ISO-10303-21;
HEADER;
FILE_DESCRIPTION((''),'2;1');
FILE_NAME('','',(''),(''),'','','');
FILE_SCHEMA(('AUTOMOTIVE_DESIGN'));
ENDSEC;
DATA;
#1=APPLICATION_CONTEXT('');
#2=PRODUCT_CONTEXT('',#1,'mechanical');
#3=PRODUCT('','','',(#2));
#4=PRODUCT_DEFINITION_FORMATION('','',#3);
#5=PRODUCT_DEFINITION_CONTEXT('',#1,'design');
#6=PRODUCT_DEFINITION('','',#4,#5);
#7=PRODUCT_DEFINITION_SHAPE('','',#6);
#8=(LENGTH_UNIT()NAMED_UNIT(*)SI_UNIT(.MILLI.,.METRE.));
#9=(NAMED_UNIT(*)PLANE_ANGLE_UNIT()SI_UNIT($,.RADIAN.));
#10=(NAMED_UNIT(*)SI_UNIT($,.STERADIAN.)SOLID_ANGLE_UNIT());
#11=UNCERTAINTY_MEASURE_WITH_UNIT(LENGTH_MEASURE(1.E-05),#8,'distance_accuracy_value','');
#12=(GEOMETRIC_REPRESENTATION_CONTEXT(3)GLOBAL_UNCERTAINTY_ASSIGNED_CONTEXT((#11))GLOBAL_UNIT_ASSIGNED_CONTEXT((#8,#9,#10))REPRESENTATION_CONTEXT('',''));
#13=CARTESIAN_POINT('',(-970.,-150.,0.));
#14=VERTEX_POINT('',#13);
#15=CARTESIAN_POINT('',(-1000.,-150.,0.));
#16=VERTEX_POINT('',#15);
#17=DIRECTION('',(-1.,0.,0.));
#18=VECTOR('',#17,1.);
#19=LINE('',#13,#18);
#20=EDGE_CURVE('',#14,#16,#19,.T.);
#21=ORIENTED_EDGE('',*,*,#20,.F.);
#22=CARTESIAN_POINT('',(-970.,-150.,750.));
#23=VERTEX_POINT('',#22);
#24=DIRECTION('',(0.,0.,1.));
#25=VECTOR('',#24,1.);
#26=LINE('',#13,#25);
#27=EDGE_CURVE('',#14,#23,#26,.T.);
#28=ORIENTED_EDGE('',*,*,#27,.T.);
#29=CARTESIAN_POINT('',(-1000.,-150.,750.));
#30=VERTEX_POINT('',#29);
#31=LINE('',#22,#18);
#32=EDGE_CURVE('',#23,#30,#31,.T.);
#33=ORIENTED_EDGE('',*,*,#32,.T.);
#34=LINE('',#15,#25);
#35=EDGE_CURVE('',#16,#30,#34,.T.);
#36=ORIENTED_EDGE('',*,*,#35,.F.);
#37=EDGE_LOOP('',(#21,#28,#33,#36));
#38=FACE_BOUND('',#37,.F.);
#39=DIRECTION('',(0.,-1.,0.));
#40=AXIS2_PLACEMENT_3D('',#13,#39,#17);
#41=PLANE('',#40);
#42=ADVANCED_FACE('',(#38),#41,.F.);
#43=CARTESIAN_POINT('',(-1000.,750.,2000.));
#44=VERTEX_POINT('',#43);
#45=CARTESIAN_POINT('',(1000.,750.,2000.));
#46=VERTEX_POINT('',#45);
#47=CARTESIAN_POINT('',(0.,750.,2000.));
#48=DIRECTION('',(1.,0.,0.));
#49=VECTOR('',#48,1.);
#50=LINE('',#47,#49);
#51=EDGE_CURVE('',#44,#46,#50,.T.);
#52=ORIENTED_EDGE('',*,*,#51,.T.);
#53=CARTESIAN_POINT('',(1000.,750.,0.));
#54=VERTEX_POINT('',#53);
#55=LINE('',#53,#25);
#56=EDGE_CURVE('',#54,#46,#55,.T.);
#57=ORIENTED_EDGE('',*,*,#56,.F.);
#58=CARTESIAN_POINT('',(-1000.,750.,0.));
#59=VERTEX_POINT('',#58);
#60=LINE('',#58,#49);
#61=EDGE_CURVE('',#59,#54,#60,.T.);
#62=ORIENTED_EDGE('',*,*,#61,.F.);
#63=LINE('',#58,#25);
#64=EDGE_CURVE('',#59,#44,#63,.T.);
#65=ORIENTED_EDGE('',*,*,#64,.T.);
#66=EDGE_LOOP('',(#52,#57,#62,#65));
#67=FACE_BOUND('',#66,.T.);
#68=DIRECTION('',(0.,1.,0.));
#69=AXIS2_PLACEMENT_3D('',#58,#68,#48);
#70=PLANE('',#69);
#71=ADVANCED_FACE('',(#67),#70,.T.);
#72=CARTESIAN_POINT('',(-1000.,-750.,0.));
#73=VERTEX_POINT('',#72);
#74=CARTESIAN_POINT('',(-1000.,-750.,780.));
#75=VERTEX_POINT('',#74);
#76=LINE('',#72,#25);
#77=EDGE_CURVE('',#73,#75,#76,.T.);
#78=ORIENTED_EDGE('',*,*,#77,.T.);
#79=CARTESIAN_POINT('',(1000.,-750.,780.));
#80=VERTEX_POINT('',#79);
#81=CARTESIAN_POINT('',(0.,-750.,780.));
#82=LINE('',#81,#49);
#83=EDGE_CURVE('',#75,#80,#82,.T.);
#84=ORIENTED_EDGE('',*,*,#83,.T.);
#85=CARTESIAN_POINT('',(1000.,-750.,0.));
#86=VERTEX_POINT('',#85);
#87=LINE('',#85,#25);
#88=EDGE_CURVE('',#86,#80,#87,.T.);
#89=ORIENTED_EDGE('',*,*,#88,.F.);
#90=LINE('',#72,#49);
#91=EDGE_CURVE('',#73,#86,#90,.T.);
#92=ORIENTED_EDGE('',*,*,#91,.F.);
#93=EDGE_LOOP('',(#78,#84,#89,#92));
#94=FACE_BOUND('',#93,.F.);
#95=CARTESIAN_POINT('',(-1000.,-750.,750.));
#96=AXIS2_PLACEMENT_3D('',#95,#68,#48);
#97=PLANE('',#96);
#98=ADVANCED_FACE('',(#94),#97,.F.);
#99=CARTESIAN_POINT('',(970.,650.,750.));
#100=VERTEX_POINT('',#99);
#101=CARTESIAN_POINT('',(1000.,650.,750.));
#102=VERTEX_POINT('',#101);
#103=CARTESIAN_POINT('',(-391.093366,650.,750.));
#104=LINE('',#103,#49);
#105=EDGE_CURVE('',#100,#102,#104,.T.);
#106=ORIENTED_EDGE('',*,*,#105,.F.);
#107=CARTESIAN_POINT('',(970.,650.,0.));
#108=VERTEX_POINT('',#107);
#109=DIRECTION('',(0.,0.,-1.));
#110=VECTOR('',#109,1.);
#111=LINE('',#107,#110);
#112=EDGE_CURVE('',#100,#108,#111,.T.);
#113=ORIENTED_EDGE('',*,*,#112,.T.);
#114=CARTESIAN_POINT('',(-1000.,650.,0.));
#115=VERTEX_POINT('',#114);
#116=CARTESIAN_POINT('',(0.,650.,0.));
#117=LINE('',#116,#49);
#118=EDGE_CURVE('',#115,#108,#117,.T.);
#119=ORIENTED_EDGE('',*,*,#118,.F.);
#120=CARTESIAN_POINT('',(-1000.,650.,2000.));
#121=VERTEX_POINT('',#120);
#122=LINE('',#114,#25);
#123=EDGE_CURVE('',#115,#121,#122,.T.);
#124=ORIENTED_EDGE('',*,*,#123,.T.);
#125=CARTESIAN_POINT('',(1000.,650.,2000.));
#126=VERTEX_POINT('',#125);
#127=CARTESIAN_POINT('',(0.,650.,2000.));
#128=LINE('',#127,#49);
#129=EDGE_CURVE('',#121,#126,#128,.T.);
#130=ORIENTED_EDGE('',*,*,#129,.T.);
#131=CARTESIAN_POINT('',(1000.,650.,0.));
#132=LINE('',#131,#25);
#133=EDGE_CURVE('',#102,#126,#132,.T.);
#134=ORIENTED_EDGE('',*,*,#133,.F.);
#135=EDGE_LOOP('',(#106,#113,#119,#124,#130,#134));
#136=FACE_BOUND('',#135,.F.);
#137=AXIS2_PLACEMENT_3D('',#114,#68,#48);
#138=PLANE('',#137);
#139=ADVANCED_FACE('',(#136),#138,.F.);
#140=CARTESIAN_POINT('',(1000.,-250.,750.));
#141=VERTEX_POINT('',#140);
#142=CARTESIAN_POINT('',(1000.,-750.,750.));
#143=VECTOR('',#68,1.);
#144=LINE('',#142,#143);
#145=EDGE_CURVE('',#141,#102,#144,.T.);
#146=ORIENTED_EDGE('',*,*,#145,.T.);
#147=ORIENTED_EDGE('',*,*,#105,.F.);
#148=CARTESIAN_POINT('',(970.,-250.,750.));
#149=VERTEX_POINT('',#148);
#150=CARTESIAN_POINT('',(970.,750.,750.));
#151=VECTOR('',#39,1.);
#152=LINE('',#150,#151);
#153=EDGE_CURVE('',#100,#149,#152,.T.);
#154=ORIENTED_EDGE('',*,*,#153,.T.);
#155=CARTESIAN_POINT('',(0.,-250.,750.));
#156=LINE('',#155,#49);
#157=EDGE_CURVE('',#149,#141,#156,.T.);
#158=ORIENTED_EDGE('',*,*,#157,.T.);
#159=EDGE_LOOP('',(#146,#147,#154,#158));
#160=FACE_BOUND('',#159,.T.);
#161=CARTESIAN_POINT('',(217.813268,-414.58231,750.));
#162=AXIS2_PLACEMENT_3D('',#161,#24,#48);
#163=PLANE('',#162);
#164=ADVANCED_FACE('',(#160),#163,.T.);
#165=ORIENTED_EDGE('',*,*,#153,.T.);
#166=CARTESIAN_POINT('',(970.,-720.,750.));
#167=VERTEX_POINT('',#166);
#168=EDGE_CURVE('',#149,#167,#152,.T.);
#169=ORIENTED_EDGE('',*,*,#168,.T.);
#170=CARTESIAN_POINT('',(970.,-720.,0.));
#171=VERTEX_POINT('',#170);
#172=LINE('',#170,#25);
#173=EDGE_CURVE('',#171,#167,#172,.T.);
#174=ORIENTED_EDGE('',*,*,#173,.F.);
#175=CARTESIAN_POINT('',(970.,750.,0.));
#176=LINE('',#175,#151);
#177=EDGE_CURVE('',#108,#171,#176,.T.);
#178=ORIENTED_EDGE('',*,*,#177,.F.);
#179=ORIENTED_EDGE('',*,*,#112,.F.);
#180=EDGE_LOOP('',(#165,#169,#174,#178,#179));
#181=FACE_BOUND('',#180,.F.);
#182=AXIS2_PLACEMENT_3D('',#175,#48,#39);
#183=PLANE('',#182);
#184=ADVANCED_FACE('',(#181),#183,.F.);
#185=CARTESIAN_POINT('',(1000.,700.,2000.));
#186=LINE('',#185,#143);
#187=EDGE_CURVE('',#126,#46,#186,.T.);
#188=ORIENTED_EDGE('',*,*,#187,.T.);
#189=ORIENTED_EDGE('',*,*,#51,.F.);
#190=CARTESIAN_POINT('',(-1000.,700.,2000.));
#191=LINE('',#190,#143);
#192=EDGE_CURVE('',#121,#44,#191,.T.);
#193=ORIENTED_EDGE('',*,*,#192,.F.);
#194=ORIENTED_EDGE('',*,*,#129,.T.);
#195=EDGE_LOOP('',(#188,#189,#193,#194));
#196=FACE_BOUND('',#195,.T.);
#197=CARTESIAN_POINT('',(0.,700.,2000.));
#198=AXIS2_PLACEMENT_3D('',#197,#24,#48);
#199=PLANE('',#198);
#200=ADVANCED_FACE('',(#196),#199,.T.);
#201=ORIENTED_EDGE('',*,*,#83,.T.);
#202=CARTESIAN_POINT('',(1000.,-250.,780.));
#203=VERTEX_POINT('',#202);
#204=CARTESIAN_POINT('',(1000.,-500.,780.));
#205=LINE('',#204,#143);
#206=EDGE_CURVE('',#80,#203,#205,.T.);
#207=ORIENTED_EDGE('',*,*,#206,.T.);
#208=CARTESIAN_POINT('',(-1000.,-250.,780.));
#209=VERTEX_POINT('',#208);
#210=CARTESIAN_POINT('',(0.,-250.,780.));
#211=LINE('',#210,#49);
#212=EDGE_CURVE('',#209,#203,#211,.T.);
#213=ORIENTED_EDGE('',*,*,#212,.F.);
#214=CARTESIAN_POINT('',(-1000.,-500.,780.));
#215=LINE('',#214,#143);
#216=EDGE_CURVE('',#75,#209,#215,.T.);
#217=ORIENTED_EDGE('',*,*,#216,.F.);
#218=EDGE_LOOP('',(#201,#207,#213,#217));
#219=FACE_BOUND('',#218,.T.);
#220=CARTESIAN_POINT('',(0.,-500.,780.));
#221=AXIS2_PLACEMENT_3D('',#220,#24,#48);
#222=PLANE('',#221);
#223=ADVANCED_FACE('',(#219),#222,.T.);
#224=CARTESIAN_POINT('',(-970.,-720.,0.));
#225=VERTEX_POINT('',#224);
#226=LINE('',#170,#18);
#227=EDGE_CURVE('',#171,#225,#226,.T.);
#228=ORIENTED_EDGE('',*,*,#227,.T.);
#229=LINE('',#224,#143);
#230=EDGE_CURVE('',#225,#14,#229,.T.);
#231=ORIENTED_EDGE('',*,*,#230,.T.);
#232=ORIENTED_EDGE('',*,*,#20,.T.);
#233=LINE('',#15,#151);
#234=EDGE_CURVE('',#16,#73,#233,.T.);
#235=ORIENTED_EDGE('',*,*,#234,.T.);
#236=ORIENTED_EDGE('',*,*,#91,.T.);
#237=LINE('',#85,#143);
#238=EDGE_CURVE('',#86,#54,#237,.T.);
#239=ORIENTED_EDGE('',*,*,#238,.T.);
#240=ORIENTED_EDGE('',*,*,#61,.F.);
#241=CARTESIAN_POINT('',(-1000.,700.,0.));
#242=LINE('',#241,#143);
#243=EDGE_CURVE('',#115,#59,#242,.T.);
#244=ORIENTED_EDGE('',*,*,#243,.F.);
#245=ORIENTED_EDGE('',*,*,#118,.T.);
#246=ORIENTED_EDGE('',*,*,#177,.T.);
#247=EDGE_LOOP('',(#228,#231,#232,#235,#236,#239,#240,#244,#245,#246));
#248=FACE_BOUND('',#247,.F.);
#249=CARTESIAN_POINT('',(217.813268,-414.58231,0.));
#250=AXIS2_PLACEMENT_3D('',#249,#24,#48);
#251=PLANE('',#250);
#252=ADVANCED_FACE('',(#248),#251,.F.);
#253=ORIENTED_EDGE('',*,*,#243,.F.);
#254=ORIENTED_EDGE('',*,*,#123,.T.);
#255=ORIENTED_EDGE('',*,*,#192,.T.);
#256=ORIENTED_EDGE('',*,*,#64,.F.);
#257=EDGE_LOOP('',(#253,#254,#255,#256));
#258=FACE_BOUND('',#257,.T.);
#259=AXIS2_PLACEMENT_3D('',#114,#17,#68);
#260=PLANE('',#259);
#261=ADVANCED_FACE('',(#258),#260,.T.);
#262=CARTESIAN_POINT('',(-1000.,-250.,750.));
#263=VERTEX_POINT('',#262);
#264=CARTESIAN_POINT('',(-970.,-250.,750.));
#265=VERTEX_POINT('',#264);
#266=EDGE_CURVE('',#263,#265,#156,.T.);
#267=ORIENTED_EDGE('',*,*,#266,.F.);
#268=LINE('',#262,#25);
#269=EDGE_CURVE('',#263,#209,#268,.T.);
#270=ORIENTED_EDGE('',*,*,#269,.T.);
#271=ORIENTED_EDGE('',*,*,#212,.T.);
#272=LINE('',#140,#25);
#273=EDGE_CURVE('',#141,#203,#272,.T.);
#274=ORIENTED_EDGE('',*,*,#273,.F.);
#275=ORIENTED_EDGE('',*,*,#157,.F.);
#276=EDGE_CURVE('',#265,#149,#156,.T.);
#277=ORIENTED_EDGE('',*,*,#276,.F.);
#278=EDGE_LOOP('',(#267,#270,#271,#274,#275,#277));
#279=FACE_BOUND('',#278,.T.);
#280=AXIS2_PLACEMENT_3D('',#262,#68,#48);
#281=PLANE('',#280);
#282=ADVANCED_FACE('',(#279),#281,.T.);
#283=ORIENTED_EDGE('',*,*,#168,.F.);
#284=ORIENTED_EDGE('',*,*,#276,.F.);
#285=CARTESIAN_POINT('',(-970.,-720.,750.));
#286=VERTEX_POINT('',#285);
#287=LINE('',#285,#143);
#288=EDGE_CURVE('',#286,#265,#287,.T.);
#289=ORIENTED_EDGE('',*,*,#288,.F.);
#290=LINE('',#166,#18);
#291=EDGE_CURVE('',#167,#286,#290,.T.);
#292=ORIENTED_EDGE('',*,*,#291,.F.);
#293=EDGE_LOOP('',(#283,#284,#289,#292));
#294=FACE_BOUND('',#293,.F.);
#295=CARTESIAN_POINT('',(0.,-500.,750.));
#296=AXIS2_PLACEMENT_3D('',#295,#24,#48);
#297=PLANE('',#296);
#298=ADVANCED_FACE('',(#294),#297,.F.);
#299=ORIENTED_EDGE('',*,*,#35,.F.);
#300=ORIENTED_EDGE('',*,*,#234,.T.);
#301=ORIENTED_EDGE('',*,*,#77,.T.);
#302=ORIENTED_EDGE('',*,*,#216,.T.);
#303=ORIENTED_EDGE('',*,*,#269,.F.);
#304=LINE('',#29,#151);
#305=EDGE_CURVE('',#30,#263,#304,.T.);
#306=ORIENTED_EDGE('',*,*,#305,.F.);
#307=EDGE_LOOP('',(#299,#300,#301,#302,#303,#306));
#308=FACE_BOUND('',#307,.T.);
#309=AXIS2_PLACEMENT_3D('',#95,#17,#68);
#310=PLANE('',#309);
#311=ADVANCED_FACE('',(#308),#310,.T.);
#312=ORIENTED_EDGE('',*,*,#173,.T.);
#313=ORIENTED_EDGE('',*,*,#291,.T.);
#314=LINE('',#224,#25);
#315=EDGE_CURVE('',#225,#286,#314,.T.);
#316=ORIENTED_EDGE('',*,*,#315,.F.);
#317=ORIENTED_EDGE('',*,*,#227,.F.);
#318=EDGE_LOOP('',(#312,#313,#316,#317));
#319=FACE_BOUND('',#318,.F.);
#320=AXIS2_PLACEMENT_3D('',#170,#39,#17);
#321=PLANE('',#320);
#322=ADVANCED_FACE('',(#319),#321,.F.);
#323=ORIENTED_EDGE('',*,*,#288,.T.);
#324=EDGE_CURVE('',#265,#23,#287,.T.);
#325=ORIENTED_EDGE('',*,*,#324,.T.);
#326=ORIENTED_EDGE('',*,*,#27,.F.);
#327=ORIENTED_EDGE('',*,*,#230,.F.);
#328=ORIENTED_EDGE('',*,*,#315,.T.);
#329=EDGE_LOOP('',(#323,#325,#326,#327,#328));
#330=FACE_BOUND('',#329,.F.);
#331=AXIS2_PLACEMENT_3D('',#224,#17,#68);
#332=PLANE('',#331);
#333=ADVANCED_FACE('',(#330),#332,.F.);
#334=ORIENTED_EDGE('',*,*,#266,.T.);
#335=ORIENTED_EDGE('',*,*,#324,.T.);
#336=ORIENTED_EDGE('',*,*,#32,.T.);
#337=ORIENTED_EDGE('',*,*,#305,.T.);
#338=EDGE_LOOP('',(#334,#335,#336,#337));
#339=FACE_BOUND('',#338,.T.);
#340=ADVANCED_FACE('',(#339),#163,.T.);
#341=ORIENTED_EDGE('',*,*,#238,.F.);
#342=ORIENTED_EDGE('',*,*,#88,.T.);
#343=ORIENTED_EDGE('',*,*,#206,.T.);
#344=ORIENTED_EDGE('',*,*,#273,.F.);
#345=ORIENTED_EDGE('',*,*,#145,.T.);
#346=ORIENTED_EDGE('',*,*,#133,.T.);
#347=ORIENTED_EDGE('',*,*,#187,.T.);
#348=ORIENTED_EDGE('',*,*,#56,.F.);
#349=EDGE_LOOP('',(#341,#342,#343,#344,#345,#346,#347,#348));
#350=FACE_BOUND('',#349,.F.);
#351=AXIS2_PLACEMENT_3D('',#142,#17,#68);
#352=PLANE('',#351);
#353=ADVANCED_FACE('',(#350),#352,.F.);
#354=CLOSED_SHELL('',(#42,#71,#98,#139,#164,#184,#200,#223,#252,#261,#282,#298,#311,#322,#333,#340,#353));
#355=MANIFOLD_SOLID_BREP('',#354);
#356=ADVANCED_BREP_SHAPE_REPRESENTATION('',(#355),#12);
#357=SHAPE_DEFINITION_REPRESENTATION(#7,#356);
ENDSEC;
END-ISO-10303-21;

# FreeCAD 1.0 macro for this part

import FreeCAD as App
import Part
import Sketcher

doc = App.newDocument("Part")
params = doc.addObject("Spreadsheet::Sheet", "Params")
for row, (alias, value) in enumerate([
    ("sketch1_width", "2000 mm"),
    ("sketch1_height", "100 mm"),
    ("pad1_length", "2000 mm"),
    ("sketch2_width", "30 mm"),
    ("sketch2_width2", "1940 mm"),
    ("sketch2_height", "1500 mm"),
    ("sketch2_height2", "1470 mm"),
    ("sketch2_height3", "570 mm"),
    ("pad2_length", "750 mm"),
    ("sketch3_width", "2000 mm"),
    ("sketch3_height", "500 mm"),
    ("pad3_length", "30 mm"),
], start=1):
    params.set(f"A{row}", alias)
    params.set(f"B{row}", "=" + value)
    params.setAlias(f"B{row}", alias)

body = doc.addObject("PartDesign::Body", "Body")

# Sketch on XY plane
sketch1 = doc.addObject("Sketcher::SketchObject", "Sketch")
body.addObject(sketch1)
sketch1.AttachmentSupport = (doc.XY_Plane, [""])
sketch1.MapMode = "FlatFace"
sketch1.addGeometry(Part.LineSegment(App.Vector(-1000, 750, 0), App.Vector(-1000, 650, 0)), False)
sketch1.addGeometry(Part.LineSegment(App.Vector(-1000, 650, 0), App.Vector(1000, 650, 0)), False)
sketch1.addGeometry(Part.LineSegment(App.Vector(1000, 650, 0), App.Vector(1000, 750, 0)), False)
sketch1.addGeometry(Part.LineSegment(App.Vector(1000, 750, 0), App.Vector(-1000, 750, 0)), False)
sketch1.addConstraint(Sketcher.Constraint("Coincident", 0, 2, 1, 1))
sketch1.addConstraint(Sketcher.Constraint("Coincident", 1, 2, 2, 1))
sketch1.addConstraint(Sketcher.Constraint("Coincident", 2, 2, 3, 1))
sketch1.addConstraint(Sketcher.Constraint("Coincident", 3, 2, 0, 1))
sketch1.addConstraint(Sketcher.Constraint("Vertical", 0))
sketch1.addConstraint(Sketcher.Constraint("Horizontal", 1))
sketch1.addConstraint(Sketcher.Constraint("Vertical", 2))
sketch1.addConstraint(Sketcher.Constraint("Horizontal", 3))
sketch1.addConstraint(Sketcher.Constraint("DistanceX", 1, 1, 1, 2, 2000.0))
sketch1.addConstraint(Sketcher.Constraint("DistanceY", 0, 2, 0, 1, 100.0))
sketch1.addConstraint(Sketcher.Constraint("DistanceX", 0, 2, -1, 1, 1000.0))
sketch1.addConstraint(Sketcher.Constraint("DistanceY", -1, 1, 0, 2, 650.0))
sketch1.setExpression("Constraints[8]", "Params.sketch1_width")
sketch1.setExpression("Constraints[9]", "Params.sketch1_height")
pad1 = doc.addObject("PartDesign::Pad", "Pad")
body.addObject(pad1)
pad1.Profile = sketch1
pad1.setExpression("Length", "Params.pad1_length")

# Sketch on XY plane
sketch2 = doc.addObject("Sketcher::SketchObject", "Sketch001")
body.addObject(sketch2)
sketch2.AttachmentSupport = (doc.XY_Plane, [""])
sketch2.MapMode = "FlatFace"
sketch2.addGeometry(Part.LineSegment(App.Vector(1000, -750, 0), App.Vector(1000, 750, 0)), False)
sketch2.addGeometry(Part.LineSegment(App.Vector(1000, 750, 0), App.Vector(970, 750, 0)), False)
sketch2.addGeometry(Part.LineSegment(App.Vector(970, 750, 0), App.Vector(970, -720, 0)), False)
sketch2.addGeometry(Part.LineSegment(App.Vector(970, -720, 0), App.Vector(-970, -720, 0)), False)
sketch2.addGeometry(Part.LineSegment(App.Vector(-970, -720, 0), App.Vector(-970, -150, 0)), False)
sketch2.addGeometry(Part.LineSegment(App.Vector(-970, -150, 0), App.Vector(-1000, -150, 0)), False)
sketch2.addGeometry(Part.LineSegment(App.Vector(-1000, -150, 0), App.Vector(-1000, -750, 0)), False)
sketch2.addGeometry(Part.LineSegment(App.Vector(-1000, -750, 0), App.Vector(1000, -750, 0)), False)
sketch2.addConstraint(Sketcher.Constraint("Coincident", 0, 2, 1, 1))
sketch2.addConstraint(Sketcher.Constraint("Coincident", 1, 2, 2, 1))
sketch2.addConstraint(Sketcher.Constraint("Coincident", 2, 2, 3, 1))
sketch2.addConstraint(Sketcher.Constraint("Coincident", 3, 2, 4, 1))
sketch2.addConstraint(Sketcher.Constraint("Coincident", 4, 2, 5, 1))
sketch2.addConstraint(Sketcher.Constraint("Coincident", 5, 2, 6, 1))
sketch2.addConstraint(Sketcher.Constraint("Coincident", 6, 2, 7, 1))
sketch2.addConstraint(Sketcher.Constraint("Coincident", 7, 2, 0, 1))
sketch2.addConstraint(Sketcher.Constraint("Vertical", 0))
sketch2.addConstraint(Sketcher.Constraint("Horizontal", 1))
sketch2.addConstraint(Sketcher.Constraint("Vertical", 2))
sketch2.addConstraint(Sketcher.Constraint("Horizontal", 3))
sketch2.addConstraint(Sketcher.Constraint("Vertical", 4))
sketch2.addConstraint(Sketcher.Constraint("Horizontal", 5))
sketch2.addConstraint(Sketcher.Constraint("Vertical", 6))
sketch2.addConstraint(Sketcher.Constraint("Horizontal", 7))
sketch2.addConstraint(Sketcher.Constraint("Symmetric", 0, 2, 6, 2, -1, 1))
sketch2.addConstraint(Sketcher.Constraint("Equal", 1, 5))
sketch2.addConstraint(Sketcher.Constraint("DistanceX", 1, 2, 1, 1, 30.0))
sketch2.addConstraint(Sketcher.Constraint("DistanceX", 3, 2, 3, 1, 1940.0))
sketch2.addConstraint(Sketcher.Constraint("DistanceY", 0, 1, 0, 2, 1500.0))
sketch2.addConstraint(Sketcher.Constraint("DistanceY", 2, 2, 2, 1, 1470.0))
sketch2.addConstraint(Sketcher.Constraint("DistanceY", 4, 1, 4, 2, 570.0))
sketch2.setExpression("Constraints[18]", "Params.sketch2_width")
sketch2.setExpression("Constraints[19]", "Params.sketch2_width2")
sketch2.setExpression("Constraints[20]", "Params.sketch2_height")
sketch2.setExpression("Constraints[21]", "Params.sketch2_height2")
sketch2.setExpression("Constraints[22]", "Params.sketch2_height3")
pad2 = doc.addObject("PartDesign::Pad", "Pad001")
body.addObject(pad2)
pad2.Profile = sketch2
pad2.setExpression("Length", "Params.pad2_length")

# Sketch on XY plane
sketch3 = doc.addObject("Sketcher::SketchObject", "Sketch002")
body.addObject(sketch3)
sketch3.AttachmentSupport = (doc.XY_Plane, [""])
sketch3.MapMode = "FlatFace"
sketch3.AttachmentOffset = App.Placement(App.Vector(0, 0, 750), App.Rotation())
sketch3.addGeometry(Part.LineSegment(App.Vector(-1000, -250, 0), App.Vector(-1000, -750, 0)), False)
sketch3.addGeometry(Part.LineSegment(App.Vector(-1000, -750, 0), App.Vector(1000, -750, 0)), False)
sketch3.addGeometry(Part.LineSegment(App.Vector(1000, -750, 0), App.Vector(1000, -250, 0)), False)
sketch3.addGeometry(Part.LineSegment(App.Vector(1000, -250, 0), App.Vector(-1000, -250, 0)), False)
sketch3.addConstraint(Sketcher.Constraint("Coincident", 0, 2, 1, 1))
sketch3.addConstraint(Sketcher.Constraint("Coincident", 1, 2, 2, 1))
sketch3.addConstraint(Sketcher.Constraint("Coincident", 2, 2, 3, 1))
sketch3.addConstraint(Sketcher.Constraint("Coincident", 3, 2, 0, 1))
sketch3.addConstraint(Sketcher.Constraint("Vertical", 0))
sketch3.addConstraint(Sketcher.Constraint("Horizontal", 1))
sketch3.addConstraint(Sketcher.Constraint("Vertical", 2))
sketch3.addConstraint(Sketcher.Constraint("Horizontal", 3))
sketch3.addConstraint(Sketcher.Constraint("DistanceX", 1, 1, 1, 2, 2000.0))
sketch3.addConstraint(Sketcher.Constraint("DistanceY", 0, 2, 0, 1, 500.0))
sketch3.addConstraint(Sketcher.Constraint("DistanceX", 0, 2, -1, 1, 1000.0))
sketch3.addConstraint(Sketcher.Constraint("DistanceY", 0, 2, -1, 1, 750.0))
sketch3.setExpression("Constraints[8]", "Params.sketch3_width")
sketch3.setExpression("Constraints[9]", "Params.sketch3_height")
pad3 = doc.addObject("PartDesign::Pad", "Pad002")
body.addObject(pad3)
pad3.Profile = sketch3
pad3.setExpression("Length", "Params.pad3_length")
body2 = doc.addObject("PartDesign::Body", "Body001")
doc.recompute()

mirroring = doc.addObject("Part::Mirroring", "Mirroring")
mirroring.Source = body
mirroring.Base = App.Vector(0, 0, 0)
mirroring.Normal = App.Vector(1, 0, 0)
body2.BaseFeature = mirroring
doc.recompute()
body2.Visibility = False
mirroring.Visibility = False

doc.recompute()
